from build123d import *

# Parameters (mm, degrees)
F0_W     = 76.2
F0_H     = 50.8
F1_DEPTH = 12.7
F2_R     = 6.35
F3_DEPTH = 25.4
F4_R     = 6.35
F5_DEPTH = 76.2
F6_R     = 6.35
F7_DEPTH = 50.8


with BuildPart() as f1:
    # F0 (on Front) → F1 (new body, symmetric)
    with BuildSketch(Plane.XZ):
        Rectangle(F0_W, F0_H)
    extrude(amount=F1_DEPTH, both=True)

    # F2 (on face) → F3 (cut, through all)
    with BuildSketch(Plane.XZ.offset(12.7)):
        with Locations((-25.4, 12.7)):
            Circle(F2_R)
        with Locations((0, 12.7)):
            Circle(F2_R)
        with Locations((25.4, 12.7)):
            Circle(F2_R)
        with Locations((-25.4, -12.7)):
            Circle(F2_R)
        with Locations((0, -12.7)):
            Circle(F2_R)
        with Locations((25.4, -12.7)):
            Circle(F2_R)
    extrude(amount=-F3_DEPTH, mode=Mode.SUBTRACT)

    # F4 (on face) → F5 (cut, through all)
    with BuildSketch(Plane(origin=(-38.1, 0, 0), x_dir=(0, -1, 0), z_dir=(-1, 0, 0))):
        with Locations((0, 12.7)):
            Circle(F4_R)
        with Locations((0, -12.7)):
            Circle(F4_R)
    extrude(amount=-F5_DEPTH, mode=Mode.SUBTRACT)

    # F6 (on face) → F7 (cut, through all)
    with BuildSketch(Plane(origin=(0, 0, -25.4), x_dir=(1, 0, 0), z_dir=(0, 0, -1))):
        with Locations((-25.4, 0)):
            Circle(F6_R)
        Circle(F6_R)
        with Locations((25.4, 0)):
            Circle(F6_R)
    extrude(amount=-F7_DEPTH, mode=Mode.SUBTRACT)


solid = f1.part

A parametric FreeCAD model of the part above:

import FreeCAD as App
import Part
import Sketcher
from FreeCAD import Vector
Q = App.Units.Quantity


def add_polygon(sketch, points):
    """Adds a closed chain of lines whose ends are joined by coincident constraints."""
    first, n = sketch.GeometryCount, len(points)
    for a, b in zip(points, points[1:] + points[:1]):
        sketch.addGeometry(Part.LineSegment(App.Vector(*a, 0), App.Vector(*b, 0)), False)
    for i in range(n):
        sketch.addConstraint(Sketcher.Constraint("Coincident", first + i, 2, first + (i + 1) % n, 1))

doc = App.newDocument("Part")
params = doc.addObject("Spreadsheet::Sheet", "Params")
for row, (alias, value) in enumerate([
    ("sketch1_width", "3 in"),
    ("sketch1_height", "2 in"),
    ("pad1_length", "1 in"),
    ("sketch2_diameter", "0.5 in"),
    ("sketch3_diameter", "0.5 in"),
    ("sketch4_diameter", "0.5 in"),
], start=1):
    params.set(f"A{row}", alias)
    params.set(f"B{row}", "=" + value)
    params.setAlias(f"B{row}", alias)

body = doc.addObject("PartDesign::Body", "Body")

# Sketch on XZ plane
sketch1 = body.newObject("Sketcher::SketchObject", "Sketch")
sketch1.AttachmentSupport = (doc.getObject("XZ_Plane"), [""])
sketch1.MapMode = "FlatFace"
add_polygon(sketch1, [(-38.1, 25.4), (-38.1, -25.4), (38.1, -25.4), (38.1, 25.4)])  # lines 0-3
sketch1.addConstraint(Sketcher.Constraint("Vertical", 0))
sketch1.addConstraint(Sketcher.Constraint("Horizontal", 1))
sketch1.addConstraint(Sketcher.Constraint("Vertical", 2))
sketch1.addConstraint(Sketcher.Constraint("Horizontal", 3))
sketch1.addConstraint(Sketcher.Constraint("Symmetric", 0, 2, 2, 2, -1, 1))
sketch1.addConstraint(Sketcher.Constraint("DistanceX", 1, 1, 1, 2, Q("3 in")))
sketch1.addConstraint(Sketcher.Constraint("DistanceY", 0, 2, 0, 1, Q("2 in")))
sketch1.setExpression("Constraints[9]", "Params.sketch1_width")
sketch1.setExpression("Constraints[10]", "Params.sketch1_height")
pad1 = body.newObject("PartDesign::Pad", "Pad")
pad1.Profile = sketch1
pad1.setExpression("Length", "Params.pad1_length")
pad1.Midplane = True

# Sketch on XZ plane
sketch2 = body.newObject("Sketcher::SketchObject", "Sketch001")
sketch2.AttachmentSupport = (doc.getObject("XZ_Plane"), [""])
sketch2.MapMode = "FlatFace"
sketch2.AttachmentOffset = App.Placement(Vector(0, 0, 0.5 * 25.4), App.Rotation())
sketch2.addGeometry(Part.Circle(Vector(-25.4, 12.7, 0), Vector(0, 0, 1), 6.35), False)
sketch2.addGeometry(Part.Circle(Vector(0, 12.7, 0), Vector(0, 0, 1), 6.35), False)
sketch2.addGeometry(Part.Circle(Vector(25.4, 12.7, 0), Vector(0, 0, 1), 6.35), False)
sketch2.addGeometry(Part.Circle(Vector(-25.4, -12.7, 0), Vector(0, 0, 1), 6.35), False)
sketch2.addGeometry(Part.Circle(Vector(0, -12.7, 0), Vector(0, 0, 1), 6.35), False)
sketch2.addGeometry(Part.Circle(Vector(25.4, -12.7, 0), Vector(0, 0, 1), 6.35), False)
sketch2.addConstraint(Sketcher.Constraint("Equal", 0, 1))
sketch2.addConstraint(Sketcher.Constraint("Equal", 1, 2))
sketch2.addConstraint(Sketcher.Constraint("Equal", 2, 3))
sketch2.addConstraint(Sketcher.Constraint("Equal", 3, 4))
sketch2.addConstraint(Sketcher.Constraint("Equal", 4, 5))
sketch2.addConstraint(Sketcher.Constraint("Symmetric", 2, 3, 3, 3, -1, 1))
sketch2.addConstraint(Sketcher.Constraint("Symmetric", 1, 3, 4, 3, -1, 1))
sketch2.addConstraint(Sketcher.Constraint("Symmetric", 0, 3, 5, 3, -1, 1))
sketch2.addConstraint(Sketcher.Constraint("Symmetric", 0, 3, 2, 3, -2))
sketch2.addConstraint(Sketcher.Constraint("PointOnObject", 1, 3, -2))
sketch2.addConstraint(Sketcher.Constraint("Horizontal", 0, 3, 1, 3))
sketch2.addConstraint(Sketcher.Constraint("Diameter", 0, Q("0.5 in")))
sketch2.addConstraint(Sketcher.Constraint("DistanceX", 0, 3, -1, 1, Q("1 in")))
sketch2.addConstraint(Sketcher.Constraint("DistanceY", 3, 3, 0, 3, Q("1 in")))
sketch2.setExpression("Constraints[11]", "Params.sketch2_diameter")
pocket1 = body.newObject("PartDesign::Pocket", "Pocket")
pocket1.Profile = sketch2
pocket1.Type = "ThroughAll"

# Sketch on YZ plane
sketch3 = body.newObject("Sketcher::SketchObject", "Sketch002")
sketch3.AttachmentSupport = (doc.getObject("YZ_Plane"), [""])
sketch3.MapMode = "FlatFace"
sketch3.AttachmentOffset = App.Placement(Vector(0, 0, -1.5 * 25.4), App.Rotation())
sketch3.addGeometry(Part.Circle(Vector(0, 12.7, 0), Vector(0, 0, 1), 6.35), False)
sketch3.addGeometry(Part.Circle(Vector(0, -12.7, 0), Vector(0, 0, 1), 6.35), False)
sketch3.addConstraint(Sketcher.Constraint("Equal", 0, 1))
sketch3.addConstraint(Sketcher.Constraint("Symmetric", 0, 3, 1, 3, -1, 1))
sketch3.addConstraint(Sketcher.Constraint("PointOnObject", 0, 3, -2))
sketch3.addConstraint(Sketcher.Constraint("Diameter", 0, Q("0.5 in")))
sketch3.addConstraint(Sketcher.Constraint("DistanceY", 1, 3, 0, 3, Q("1 in")))
sketch3.setExpression("Constraints[3]", "Params.sketch3_diameter")
pocket2 = body.newObject("PartDesign::Pocket", "Pocket001")
pocket2.Profile = sketch3
pocket2.Type = "ThroughAll"
pocket2.Reversed = True

# Sketch on XY plane
sketch4 = body.newObject("Sketcher::SketchObject", "Sketch003")
sketch4.AttachmentSupport = (doc.getObject("XY_Plane"), [""])
sketch4.MapMode = "FlatFace"
sketch4.AttachmentOffset = App.Placement(Vector(0, 0, -1 * 25.4), App.Rotation())
sketch4.addGeometry(Part.Circle(Vector(-25.4, 0, 0), Vector(0, 0, 1), 6.35), False)
sketch4.addGeometry(Part.Circle(Vector(0, 0, 0), Vector(0, 0, 1), 6.35), False)
sketch4.addGeometry(Part.Circle(Vector(25.4, 0, 0), Vector(0, 0, 1), 6.35), False)
sketch4.addConstraint(Sketcher.Constraint("Coincident", 1, 3, -1, 1))
sketch4.addConstraint(Sketcher.Constraint("Equal", 0, 1))
sketch4.addConstraint(Sketcher.Constraint("Equal", 1, 2))
sketch4.addConstraint(Sketcher.Constraint("Symmetric", 0, 3, 2, 3, -1, 1))
sketch4.addConstraint(Sketcher.Constraint("PointOnObject", 0, 3, -1))
sketch4.addConstraint(Sketcher.Constraint("Diameter", 0, Q("0.5 in")))
sketch4.addConstraint(Sketcher.Constraint("DistanceX", 0, 3, -1, 1, Q("1 in")))
sketch4.setExpression("Constraints[5]", "Params.sketch4_diameter")
pocket3 = body.newObject("PartDesign::Pocket", "Pocket002")
pocket3.Profile = sketch4
pocket3.Type = "ThroughAll"
pocket3.Reversed = True

doc.recompute()
